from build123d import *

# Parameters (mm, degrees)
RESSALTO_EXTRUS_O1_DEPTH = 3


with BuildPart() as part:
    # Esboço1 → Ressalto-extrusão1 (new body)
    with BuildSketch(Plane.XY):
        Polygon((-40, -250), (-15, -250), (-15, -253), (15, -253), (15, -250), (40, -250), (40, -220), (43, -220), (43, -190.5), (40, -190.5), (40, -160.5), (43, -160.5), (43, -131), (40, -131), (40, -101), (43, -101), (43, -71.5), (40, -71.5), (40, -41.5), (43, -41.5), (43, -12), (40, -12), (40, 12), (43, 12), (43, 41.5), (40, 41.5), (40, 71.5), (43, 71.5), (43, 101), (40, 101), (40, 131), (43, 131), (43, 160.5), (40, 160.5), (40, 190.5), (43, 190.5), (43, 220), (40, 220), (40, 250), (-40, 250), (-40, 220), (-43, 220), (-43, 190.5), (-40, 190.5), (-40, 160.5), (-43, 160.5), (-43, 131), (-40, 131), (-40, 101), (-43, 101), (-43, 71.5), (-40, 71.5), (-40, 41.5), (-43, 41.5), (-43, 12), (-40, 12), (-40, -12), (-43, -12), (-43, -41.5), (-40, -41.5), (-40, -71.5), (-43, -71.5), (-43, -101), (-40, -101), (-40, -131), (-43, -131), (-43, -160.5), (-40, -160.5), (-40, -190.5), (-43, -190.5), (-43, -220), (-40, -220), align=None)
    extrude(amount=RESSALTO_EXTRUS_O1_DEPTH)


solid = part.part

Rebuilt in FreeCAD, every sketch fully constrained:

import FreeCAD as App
import Part
import Sketcher
Q = App.Units.Quantity

doc = App.newDocument("Part")
body = doc.addObject("PartDesign::Body", "Body")

# Sketch on XY plane
sketch1 = body.newObject("Sketcher::SketchObject", "Sketch")
sketch1.AttachmentSupport = (doc.getObject("XY_Plane"), [""])
sketch1.MapMode = "FlatFace"
sketch1.addGeometry([
    Part.LineSegment(App.Vector(-40, -250, 0), App.Vector(-15, -250, 0)),  # 0
    Part.LineSegment(App.Vector(-15, -250, 0), App.Vector(-15, -253, 0)),  # 1
    Part.LineSegment(App.Vector(-15, -253, 0), App.Vector(15, -253, 0)),  # 2
    Part.LineSegment(App.Vector(15, -253, 0), App.Vector(15, -250, 0)),  # 3
    Part.LineSegment(App.Vector(15, -250, 0), App.Vector(40, -250, 0)),  # 4
    Part.LineSegment(App.Vector(40, -250, 0), App.Vector(40, -220, 0)),  # 5
    Part.LineSegment(App.Vector(40, -220, 0), App.Vector(43, -220, 0)),  # 6
    Part.LineSegment(App.Vector(43, -220, 0), App.Vector(43, -190.5, 0)),  # 7
    Part.LineSegment(App.Vector(43, -190.5, 0), App.Vector(40, -190.5, 0)),  # 8
    Part.LineSegment(App.Vector(40, -190.5, 0), App.Vector(40, -160.5, 0)),  # 9
    Part.LineSegment(App.Vector(40, -160.5, 0), App.Vector(43, -160.5, 0)),  # 10
    Part.LineSegment(App.Vector(43, -160.5, 0), App.Vector(43, -131, 0)),  # 11
    Part.LineSegment(App.Vector(43, -131, 0), App.Vector(40, -131, 0)),  # 12
    Part.LineSegment(App.Vector(40, -131, 0), App.Vector(40, -101, 0)),  # 13
    Part.LineSegment(App.Vector(40, -101, 0), App.Vector(43, -101, 0)),  # 14
    Part.LineSegment(App.Vector(43, -101, 0), App.Vector(43, -71.5, 0)),  # 15
    Part.LineSegment(App.Vector(43, -71.5, 0), App.Vector(40, -71.5, 0)),  # 16
    Part.LineSegment(App.Vector(40, -71.5, 0), App.Vector(40, -41.5, 0)),  # 17
    Part.LineSegment(App.Vector(40, -41.5, 0), App.Vector(43, -41.5, 0)),  # 18
    Part.LineSegment(App.Vector(43, -41.5, 0), App.Vector(43, -12, 0)),  # 19
    Part.LineSegment(App.Vector(43, -12, 0), App.Vector(40, -12, 0)),  # 20
    Part.LineSegment(App.Vector(40, -12, 0), App.Vector(40, 12, 0)),  # 21
    Part.LineSegment(App.Vector(40, 12, 0), App.Vector(43, 12, 0)),  # 22
    Part.LineSegment(App.Vector(43, 12, 0), App.Vector(43, 41.5, 0)),  # 23
    Part.LineSegment(App.Vector(43, 41.5, 0), App.Vector(40, 41.5, 0)),  # 24
    Part.LineSegment(App.Vector(40, 41.5, 0), App.Vector(40, 71.5, 0)),  # 25
    Part.LineSegment(App.Vector(40, 71.5, 0), App.Vector(43, 71.5, 0)),  # 26
    Part.LineSegment(App.Vector(43, 71.5, 0), App.Vector(43, 101, 0)),  # 27
    Part.LineSegment(App.Vector(43, 101, 0), App.Vector(40, 101, 0)),  # 28
    Part.LineSegment(App.Vector(40, 101, 0), App.Vector(40, 131, 0)),  # 29
    Part.LineSegment(App.Vector(40, 131, 0), App.Vector(43, 131, 0)),  # 30
    Part.LineSegment(App.Vector(43, 131, 0), App.Vector(43, 160.5, 0)),  # 31
    Part.LineSegment(App.Vector(43, 160.5, 0), App.Vector(40, 160.5, 0)),  # 32
    Part.LineSegment(App.Vector(40, 160.5, 0), App.Vector(40, 190.5, 0)),  # 33
    Part.LineSegment(App.Vector(40, 190.5, 0), App.Vector(43, 190.5, 0)),  # 34
    Part.LineSegment(App.Vector(43, 190.5, 0), App.Vector(43, 220, 0)),  # 35
    Part.LineSegment(App.Vector(43, 220, 0), App.Vector(40, 220, 0)),  # 36
    Part.LineSegment(App.Vector(40, 220, 0), App.Vector(40, 250, 0)),  # 37
    Part.LineSegment(App.Vector(40, 250, 0), App.Vector(-40, 250, 0)),  # 38
    Part.LineSegment(App.Vector(-40, 250, 0), App.Vector(-40, 220, 0)),  # 39
    Part.LineSegment(App.Vector(-40, 220, 0), App.Vector(-43, 220, 0)),  # 40
    Part.LineSegment(App.Vector(-43, 220, 0), App.Vector(-43, 190.5, 0)),  # 41
    Part.LineSegment(App.Vector(-43, 190.5, 0), App.Vector(-40, 190.5, 0)),  # 42
    Part.LineSegment(App.Vector(-40, 190.5, 0), App.Vector(-40, 160.5, 0)),  # 43
    Part.LineSegment(App.Vector(-40, 160.5, 0), App.Vector(-43, 160.5, 0)),  # 44
    Part.LineSegment(App.Vector(-43, 160.5, 0), App.Vector(-43, 131, 0)),  # 45
    Part.LineSegment(App.Vector(-43, 131, 0), App.Vector(-40, 131, 0)),  # 46
    Part.LineSegment(App.Vector(-40, 131, 0), App.Vector(-40, 101, 0)),  # 47
    Part.LineSegment(App.Vector(-40, 101, 0), App.Vector(-43, 101, 0)),  # 48
    Part.LineSegment(App.Vector(-43, 101, 0), App.Vector(-43, 71.5, 0)),  # 49
    Part.LineSegment(App.Vector(-43, 71.5, 0), App.Vector(-40, 71.5, 0)),  # 50
    Part.LineSegment(App.Vector(-40, 71.5, 0), App.Vector(-40, 41.5, 0)),  # 51
    Part.LineSegment(App.Vector(-40, 41.5, 0), App.Vector(-43, 41.5, 0)),  # 52
    Part.LineSegment(App.Vector(-43, 41.5, 0), App.Vector(-43, 12, 0)),  # 53
    Part.LineSegment(App.Vector(-43, 12, 0), App.Vector(-40, 12, 0)),  # 54
    Part.LineSegment(App.Vector(-40, 12, 0), App.Vector(-40, -12, 0)),  # 55
    Part.LineSegment(App.Vector(-40, -12, 0), App.Vector(-43, -12, 0)),  # 56
    Part.LineSegment(App.Vector(-43, -12, 0), App.Vector(-43, -41.5, 0)),  # 57
    Part.LineSegment(App.Vector(-43, -41.5, 0), App.Vector(-40, -41.5, 0)),  # 58
    Part.LineSegment(App.Vector(-40, -41.5, 0), App.Vector(-40, -71.5, 0)),  # 59
    Part.LineSegment(App.Vector(-40, -71.5, 0), App.Vector(-43, -71.5, 0)),  # 60
    Part.LineSegment(App.Vector(-43, -71.5, 0), App.Vector(-43, -101, 0)),  # 61
    Part.LineSegment(App.Vector(-43, -101, 0), App.Vector(-40, -101, 0)),  # 62
    Part.LineSegment(App.Vector(-40, -101, 0), App.Vector(-40, -131, 0)),  # 63
    Part.LineSegment(App.Vector(-40, -131, 0), App.Vector(-43, -131, 0)),  # 64
    Part.LineSegment(App.Vector(-43, -131, 0), App.Vector(-43, -160.5, 0)),  # 65
    Part.LineSegment(App.Vector(-43, -160.5, 0), App.Vector(-40, -160.5, 0)),  # 66
    Part.LineSegment(App.Vector(-40, -160.5, 0), App.Vector(-40, -190.5, 0)),  # 67
    Part.LineSegment(App.Vector(-40, -190.5, 0), App.Vector(-43, -190.5, 0)),  # 68
    Part.LineSegment(App.Vector(-43, -190.5, 0), App.Vector(-43, -220, 0)),  # 69
    Part.LineSegment(App.Vector(-43, -220, 0), App.Vector(-40, -220, 0)),  # 70
    Part.LineSegment(App.Vector(-40, -220, 0), App.Vector(-40, -250, 0)),  # 71
], False)
sketch1.addConstraint([
    Sketcher.Constraint("Coincident", 0, 2, 1, 1),
    Sketcher.Constraint("Coincident", 1, 2, 2, 1),
    Sketcher.Constraint("Coincident", 2, 2, 3, 1),
    Sketcher.Constraint("Coincident", 3, 2, 4, 1),
    Sketcher.Constraint("Coincident", 4, 2, 5, 1),
    Sketcher.Constraint("Coincident", 5, 2, 6, 1),
    Sketcher.Constraint("Coincident", 6, 2, 7, 1),
    Sketcher.Constraint("Coincident", 7, 2, 8, 1),
    Sketcher.Constraint("Coincident", 8, 2, 9, 1),
    Sketcher.Constraint("Coincident", 9, 2, 10, 1),
    Sketcher.Constraint("Coincident", 10, 2, 11, 1),
    Sketcher.Constraint("Coincident", 11, 2, 12, 1),
    Sketcher.Constraint("Coincident", 12, 2, 13, 1),
    Sketcher.Constraint("Coincident", 13, 2, 14, 1),
    Sketcher.Constraint("Coincident", 14, 2, 15, 1),
    Sketcher.Constraint("Coincident", 15, 2, 16, 1),
    Sketcher.Constraint("Coincident", 16, 2, 17, 1),
    Sketcher.Constraint("Coincident", 17, 2, 18, 1),
    Sketcher.Constraint("Coincident", 18, 2, 19, 1),
    Sketcher.Constraint("Coincident", 19, 2, 20, 1),
    Sketcher.Constraint("Coincident", 20, 2, 21, 1),
    Sketcher.Constraint("Coincident", 21, 2, 22, 1),
    Sketcher.Constraint("Coincident", 22, 2, 23, 1),
    Sketcher.Constraint("Coincident", 23, 2, 24, 1),
    Sketcher.Constraint("Coincident", 24, 2, 25, 1),
    Sketcher.Constraint("Coincident", 25, 2, 26, 1),
    Sketcher.Constraint("Coincident", 26, 2, 27, 1),
    Sketcher.Constraint("Coincident", 27, 2, 28, 1),
    Sketcher.Constraint("Coincident", 28, 2, 29, 1),
    Sketcher.Constraint("Coincident", 29, 2, 30, 1),
    Sketcher.Constraint("Coincident", 30, 2, 31, 1),
    Sketcher.Constraint("Coincident", 31, 2, 32, 1),
    Sketcher.Constraint("Coincident", 32, 2, 33, 1),
    Sketcher.Constraint("Coincident", 33, 2, 34, 1),
    Sketcher.Constraint("Coincident", 34, 2, 35, 1),
    Sketcher.Constraint("Coincident", 35, 2, 36, 1),
    Sketcher.Constraint("Coincident", 36, 2, 37, 1),
    Sketcher.Constraint("Coincident", 37, 2, 38, 1),
    Sketcher.Constraint("Coincident", 38, 2, 39, 1),
    Sketcher.Constraint("Coincident", 39, 2, 40, 1),
    Sketcher.Constraint("Coincident", 40, 2, 41, 1),
    Sketcher.Constraint("Coincident", 41, 2, 42, 1),
    Sketcher.Constraint("Coincident", 42, 2, 43, 1),
    Sketcher.Constraint("Coincident", 43, 2, 44, 1),
    Sketcher.Constraint("Coincident", 44, 2, 45, 1),
    Sketcher.Constraint("Coincident", 45, 2, 46, 1),
    Sketcher.Constraint("Coincident", 46, 2, 47, 1),
    Sketcher.Constraint("Coincident", 47, 2, 48, 1),
    Sketcher.Constraint("Coincident", 48, 2, 49, 1),
    Sketcher.Constraint("Coincident", 49, 2, 50, 1),
    Sketcher.Constraint("Coincident", 50, 2, 51, 1),
    Sketcher.Constraint("Coincident", 51, 2, 52, 1),
    Sketcher.Constraint("Coincident", 52, 2, 53, 1),
    Sketcher.Constraint("Coincident", 53, 2, 54, 1),
    Sketcher.Constraint("Coincident", 54, 2, 55, 1),
    Sketcher.Constraint("Coincident", 55, 2, 56, 1),
    Sketcher.Constraint("Coincident", 56, 2, 57, 1),
    Sketcher.Constraint("Coincident", 57, 2, 58, 1),
    Sketcher.Constraint("Coincident", 58, 2, 59, 1),
    Sketcher.Constraint("Coincident", 59, 2, 60, 1),
    Sketcher.Constraint("Coincident", 60, 2, 61, 1),
    Sketcher.Constraint("Coincident", 61, 2, 62, 1),
    Sketcher.Constraint("Coincident", 62, 2, 63, 1),
    Sketcher.Constraint("Coincident", 63, 2, 64, 1),
    Sketcher.Constraint("Coincident", 64, 2, 65, 1),
    Sketcher.Constraint("Coincident", 65, 2, 66, 1),
    Sketcher.Constraint("Coincident", 66, 2, 67, 1),
    Sketcher.Constraint("Coincident", 67, 2, 68, 1),
    Sketcher.Constraint("Coincident", 68, 2, 69, 1),
    Sketcher.Constraint("Coincident", 69, 2, 70, 1),
    Sketcher.Constraint("Coincident", 70, 2, 71, 1),
    Sketcher.Constraint("Coincident", 71, 2, 0, 1),
    Sketcher.Constraint("Horizontal", 0),
    Sketcher.Constraint("Vertical", 1),
    Sketcher.Constraint("Horizontal", 2),
    Sketcher.Constraint("Vertical", 3),
    Sketcher.Constraint("Horizontal", 4),
    Sketcher.Constraint("Vertical", 5),
    Sketcher.Constraint("Horizontal", 6),
    Sketcher.Constraint("Vertical", 7),
    Sketcher.Constraint("Horizontal", 8),
    Sketcher.Constraint("Vertical", 9),
    Sketcher.Constraint("Horizontal", 10),
    Sketcher.Constraint("Vertical", 11),
    Sketcher.Constraint("Horizontal", 12),
    Sketcher.Constraint("Vertical", 13),
    Sketcher.Constraint("Horizontal", 14),
    Sketcher.Constraint("Vertical", 15),
    Sketcher.Constraint("Horizontal", 16),
    Sketcher.Constraint("Vertical", 17),
    Sketcher.Constraint("Horizontal", 18),
    Sketcher.Constraint("Vertical", 19),
    Sketcher.Constraint("Horizontal", 20),
    Sketcher.Constraint("Vertical", 21),
    Sketcher.Constraint("Horizontal", 22),
    Sketcher.Constraint("Vertical", 23),
    Sketcher.Constraint("Horizontal", 24),
    Sketcher.Constraint("Vertical", 25),
    Sketcher.Constraint("Horizontal", 26),
    Sketcher.Constraint("Vertical", 27),
    Sketcher.Constraint("Horizontal", 28),
    Sketcher.Constraint("Vertical", 29),
    Sketcher.Constraint("Horizontal", 30),
    Sketcher.Constraint("Vertical", 31),
    Sketcher.Constraint("Horizontal", 32),
    Sketcher.Constraint("Vertical", 33),
    Sketcher.Constraint("Horizontal", 34),
    Sketcher.Constraint("Vertical", 35),
    Sketcher.Constraint("Horizontal", 36),
    Sketcher.Constraint("Vertical", 37),
    Sketcher.Constraint("Horizontal", 38),
    Sketcher.Constraint("Vertical", 39),
    Sketcher.Constraint("Horizontal", 40),
    Sketcher.Constraint("Vertical", 41),
    Sketcher.Constraint("Horizontal", 42),
    Sketcher.Constraint("Vertical", 43),
    Sketcher.Constraint("Horizontal", 44),
    Sketcher.Constraint("Vertical", 45),
    Sketcher.Constraint("Horizontal", 46),
    Sketcher.Constraint("Vertical", 47),
    Sketcher.Constraint("Horizontal", 48),
    Sketcher.Constraint("Vertical", 49),
    Sketcher.Constraint("Horizontal", 50),
    Sketcher.Constraint("Vertical", 51),
    Sketcher.Constraint("Horizontal", 52),
    Sketcher.Constraint("Vertical", 53),
    Sketcher.Constraint("Horizontal", 54),
    Sketcher.Constraint("Vertical", 55),
    Sketcher.Constraint("Horizontal", 56),
    Sketcher.Constraint("Vertical", 57),
    Sketcher.Constraint("Horizontal", 58),
    Sketcher.Constraint("Vertical", 59),
    Sketcher.Constraint("Horizontal", 60),
    Sketcher.Constraint("Vertical", 61),
    Sketcher.Constraint("Horizontal", 62),
    Sketcher.Constraint("Vertical", 63),
    Sketcher.Constraint("Horizontal", 64),
    Sketcher.Constraint("Vertical", 65),
    Sketcher.Constraint("Horizontal", 66),
    Sketcher.Constraint("Vertical", 67),
    Sketcher.Constraint("Horizontal", 68),
    Sketcher.Constraint("Vertical", 69),
    Sketcher.Constraint("Horizontal", 70),
    Sketcher.Constraint("Vertical", 71),
    Sketcher.Constraint("Symmetric", 4, 2, 38, 2, -1, 1),
    Sketcher.Constraint("Symmetric", 6, 2, 40, 2, -1, 1),
    Sketcher.Constraint("Symmetric", 8, 2, 42, 2, -1, 1),
    Sketcher.Constraint("Symmetric", 10, 2, 44, 2, -1, 1),
    Sketcher.Constraint("Symmetric", 12, 2, 46, 2, -1, 1),
    Sketcher.Constraint("Symmetric", 14, 2, 48, 2, -1, 1),
    Sketcher.Constraint("Symmetric", 16, 2, 50, 2, -1, 1),
    Sketcher.Constraint("Symmetric", 18, 2, 52, 2, -1, 1),
    Sketcher.Constraint("Symmetric", 20, 2, 54, 2, -1, 1),
    Sketcher.Constraint("Symmetric", 22, 2, 56, 2, -1, 1),
    Sketcher.Constraint("Symmetric", 24, 2, 58, 2, -1, 1),
    Sketcher.Constraint("Symmetric", 26, 2, 60, 2, -1, 1),
    Sketcher.Constraint("Symmetric", 28, 2, 62, 2, -1, 1),
    Sketcher.Constraint("Symmetric", 30, 2, 64, 2, -1, 1),
    Sketcher.Constraint("Symmetric", 32, 2, 66, 2, -1, 1),
    Sketcher.Constraint("Symmetric", 34, 2, 68, 2, -1, 1),
    Sketcher.Constraint("Symmetric", 36, 2, 70, 2, -1, 1),
    Sketcher.Constraint("Symmetric", 0, 2, 3, 2, -2),
    Sketcher.Constraint("Symmetric", 36, 2, 39, 2, -2),
    Sketcher.Constraint("Symmetric", 34, 2, 41, 2, -2),
    Sketcher.Constraint("Symmetric", 32, 2, 43, 2, -2),
    Sketcher.Constraint("Symmetric", 30, 2, 45, 2, -2),
    Sketcher.Constraint("Symmetric", 28, 2, 47, 2, -2),
    Sketcher.Constraint("Symmetric", 26, 2, 49, 2, -2),
    Sketcher.Constraint("Symmetric", 24, 2, 51, 2, -2),
    Sketcher.Constraint("Symmetric", 22, 2, 53, 2, -2),
    Sketcher.Constraint("Vertical", 5, 2, 8, 2),
    Sketcher.Constraint("Vertical", 7, 2, 10, 2),
    Sketcher.Constraint("Vertical", 9, 2, 12, 2),
    Sketcher.Constraint("Vertical", 11, 2, 14, 2),
    Sketcher.Constraint("Vertical", 13, 2, 16, 2),
    Sketcher.Constraint("Vertical", 15, 2, 18, 2),
    Sketcher.Constraint("Vertical", 17, 2, 20, 2),
    Sketcher.Constraint("Equal", 70, 1),
    Sketcher.Constraint("Equal", 2, 5),
    Sketcher.Constraint("Equal", 5, 9),
    Sketcher.Constraint("Equal", 7, 11),
    Sketcher.Constraint("Equal", 9, 13),
    Sketcher.Constraint("Equal", 11, 15),
    Sketcher.Constraint("Equal", 13, 17),
    Sketcher.Constraint("Equal", 15, 19),
    Sketcher.Constraint("DistanceX", 0, 1, 0, 2, Q("25 mm")),
    Sketcher.Constraint("DistanceX", 2, 1, 2, 2, Q("30 mm")),
    Sketcher.Constraint("DistanceX", 6, 1, 6, 2, Q("3 mm")),
    Sketcher.Constraint("DistanceY", 21, 1, 21, 2, Q("24 mm")),
    Sketcher.Constraint("DistanceY", 7, 1, 7, 2, Q("29.5 mm")),
])
pad1 = body.newObject("PartDesign::Pad", "Pad")
pad1.Profile = sketch1
pad1.Length = 3

doc.recompute()
